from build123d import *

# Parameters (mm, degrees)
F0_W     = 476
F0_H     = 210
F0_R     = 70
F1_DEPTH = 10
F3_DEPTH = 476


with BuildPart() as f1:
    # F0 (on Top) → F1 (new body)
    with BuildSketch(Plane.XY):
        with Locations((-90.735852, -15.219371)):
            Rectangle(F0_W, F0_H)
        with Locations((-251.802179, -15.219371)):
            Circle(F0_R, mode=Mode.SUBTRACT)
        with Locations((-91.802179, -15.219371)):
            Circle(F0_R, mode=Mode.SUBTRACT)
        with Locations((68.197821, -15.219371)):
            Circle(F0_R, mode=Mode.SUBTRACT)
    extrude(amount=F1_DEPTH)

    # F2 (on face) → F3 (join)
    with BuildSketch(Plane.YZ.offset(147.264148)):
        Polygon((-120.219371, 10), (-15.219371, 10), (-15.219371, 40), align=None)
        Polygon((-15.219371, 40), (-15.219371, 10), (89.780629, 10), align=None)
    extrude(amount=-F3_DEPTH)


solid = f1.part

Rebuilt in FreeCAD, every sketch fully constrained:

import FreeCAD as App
import Part
import Sketcher

V = App.Vector

doc = App.newDocument("Part")
body = doc.addObject("PartDesign::Body", "Body")

# Sketch on XY plane
sketch1 = body.newObject("Sketcher::SketchObject", "Sketch")
sketch1.AttachmentSupport = (doc.getObject("XY_Plane"), [""])
sketch1.MapMode = "FlatFace"
sketch1.addGeometry(Part.LineSegment(V(-329, 90, 0), V(-329, -120, 0)), False)
sketch1.addGeometry(Part.LineSegment(V(-329, -120, 0), V(147, -120, 0)), False)
sketch1.addGeometry(Part.LineSegment(V(147, -120, 0), V(147, 90, 0)), False)
sketch1.addGeometry(Part.LineSegment(V(147, 90, 0), V(-329, 90, 0)), False)
sketch1.addGeometry(Part.Circle(V(-252, -15, 0), V(0, 0, 1), 70), False)
sketch1.addGeometry(Part.Circle(V(-92, -15, 0), V(0, 0, 1), 70), False)
sketch1.addGeometry(Part.Circle(V(68, -15, 0), V(0, 0, 1), 70), False)
sketch1.addConstraint(Sketcher.Constraint("Coincident", 0, 2, 1, 1))
sketch1.addConstraint(Sketcher.Constraint("Coincident", 1, 2, 2, 1))
sketch1.addConstraint(Sketcher.Constraint("Coincident", 2, 2, 3, 1))
sketch1.addConstraint(Sketcher.Constraint("Coincident", 3, 2, 0, 1))
sketch1.addConstraint(Sketcher.Constraint("Vertical", 0))
sketch1.addConstraint(Sketcher.Constraint("Horizontal", 1))
sketch1.addConstraint(Sketcher.Constraint("Vertical", 2))
sketch1.addConstraint(Sketcher.Constraint("Horizontal", 3))
sketch1.addConstraint(Sketcher.Constraint("Equal", 4, 5))
sketch1.addConstraint(Sketcher.Constraint("Equal", 5, 6))
sketch1.addConstraint(Sketcher.Constraint("Horizontal", 4, 3, 5, 3))
sketch1.addConstraint(Sketcher.Constraint("Horizontal", 5, 3, 6, 3))
sketch1.addConstraint(Sketcher.Constraint("Diameter", 4, 140.0))
sketch1.addConstraint(Sketcher.Constraint("DistanceX", 1, 1, 1, 2, 476.0))
sketch1.addConstraint(Sketcher.Constraint("DistanceY", 0, 2, 0, 1, 210.0))
sketch1.addConstraint(Sketcher.Constraint("DistanceX", 4, 3, 5, 3, 160.0))
sketch1.addConstraint(Sketcher.Constraint("DistanceX", 5, 3, 6, 3, 160.0))
sketch1.addConstraint(Sketcher.Constraint("DistanceY", 0, 2, 4, 3, 105.0))
sketch1.addConstraint(Sketcher.Constraint("DistanceX", 4, 3, -1, 1, 251.802179))
sketch1.addConstraint(Sketcher.Constraint("DistanceY", 4, 3, -1, 1, 15.219371))
sketch1.addConstraint(Sketcher.Constraint("DistanceX", 0, 2, -1, 1, 328.735852))
pad1 = body.newObject("PartDesign::Pad", "Pad")
pad1.Profile = sketch1
pad1.Length = 10

# Sketch on YZ plane
sketch2 = body.newObject("Sketcher::SketchObject", "Sketch001")
sketch2.AttachmentSupport = (doc.getObject("YZ_Plane"), [""])
sketch2.MapMode = "FlatFace"
sketch2.AttachmentOffset = App.Placement(V(0, 0, 147.264148), App.Rotation())
sketch2.addGeometry(Part.LineSegment(V(-120, 10, 0), V(90, 10, 0)), False)
sketch2.addGeometry(Part.LineSegment(V(90, 10, 0), V(-15, 40, 0)), False)
sketch2.addGeometry(Part.LineSegment(V(-15, 40, 0), V(-120, 10, 0)), False)
sketch2.addConstraint(Sketcher.Constraint("Coincident", 0, 2, 1, 1))
sketch2.addConstraint(Sketcher.Constraint("Coincident", 1, 2, 2, 1))
sketch2.addConstraint(Sketcher.Constraint("Coincident", 2, 2, 0, 1))
sketch2.addConstraint(Sketcher.Constraint("Horizontal", 0))
sketch2.addConstraint(Sketcher.Constraint("Equal", 1, 2))
sketch2.addConstraint(Sketcher.Constraint("DistanceX", 0, 1, 0, 2, 210.0))
sketch2.addConstraint(Sketcher.Constraint("DistanceY", -1, 1, 0, 2, 10.0))
sketch2.addConstraint(Sketcher.Constraint("DistanceY", -1, 1, 1, 2, 40.0))
sketch2.addConstraint(Sketcher.Constraint("DistanceX", -1, 1, 0, 2, 89.780629))
pad2 = body.newObject("PartDesign::Pad", "Pad001")
pad2.Profile = sketch2
pad2.Length = 476
pad2.Reversed = True

doc.recompute()
